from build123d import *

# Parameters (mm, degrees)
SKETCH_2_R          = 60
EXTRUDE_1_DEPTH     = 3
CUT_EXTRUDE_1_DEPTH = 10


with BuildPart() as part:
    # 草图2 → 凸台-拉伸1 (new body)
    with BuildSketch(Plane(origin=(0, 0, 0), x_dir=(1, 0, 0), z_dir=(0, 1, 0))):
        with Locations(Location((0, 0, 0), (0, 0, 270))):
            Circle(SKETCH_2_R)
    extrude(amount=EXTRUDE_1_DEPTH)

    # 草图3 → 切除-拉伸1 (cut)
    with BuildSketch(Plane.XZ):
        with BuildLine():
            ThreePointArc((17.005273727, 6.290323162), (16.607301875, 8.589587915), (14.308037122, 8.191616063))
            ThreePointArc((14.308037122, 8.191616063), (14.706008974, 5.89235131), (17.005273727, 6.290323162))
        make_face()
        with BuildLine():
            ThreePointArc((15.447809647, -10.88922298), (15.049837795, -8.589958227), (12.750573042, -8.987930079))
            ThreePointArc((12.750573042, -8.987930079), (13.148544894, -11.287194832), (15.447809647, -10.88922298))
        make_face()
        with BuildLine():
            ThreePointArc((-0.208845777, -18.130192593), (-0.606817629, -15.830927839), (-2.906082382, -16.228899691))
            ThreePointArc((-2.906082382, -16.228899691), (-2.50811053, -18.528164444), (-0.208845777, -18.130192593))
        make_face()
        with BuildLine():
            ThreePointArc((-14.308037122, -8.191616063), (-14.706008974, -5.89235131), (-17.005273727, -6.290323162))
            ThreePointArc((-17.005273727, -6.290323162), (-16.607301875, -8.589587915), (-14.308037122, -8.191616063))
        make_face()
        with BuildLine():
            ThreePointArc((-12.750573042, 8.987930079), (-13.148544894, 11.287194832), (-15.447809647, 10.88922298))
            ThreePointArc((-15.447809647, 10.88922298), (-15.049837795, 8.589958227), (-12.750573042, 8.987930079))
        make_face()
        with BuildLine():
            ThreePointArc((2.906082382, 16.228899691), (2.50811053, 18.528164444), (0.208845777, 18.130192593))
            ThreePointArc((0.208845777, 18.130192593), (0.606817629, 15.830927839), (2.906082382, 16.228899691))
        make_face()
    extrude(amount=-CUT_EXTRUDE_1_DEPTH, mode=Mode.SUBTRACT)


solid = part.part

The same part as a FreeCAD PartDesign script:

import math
import FreeCAD as App
import Part
import Sketcher

doc = App.newDocument("Part")
params = doc.addObject("Spreadsheet::Sheet", "Params")
for row, (alias, value) in enumerate([
    ("sketch1_diameter", "120 mm"),
    ("pad1_length", "3 mm"),
    ("sketch2_diameter", "3.3 mm"),
    ("pocket1_length", "10 mm"),
], start=1):
    params.set(f"A{row}", alias)
    params.set(f"B{row}", "=" + value)
    params.setAlias(f"B{row}", alias)

body = doc.addObject("PartDesign::Body", "Body")

# Sketch on XZ plane
sketch1 = body.newObject("Sketcher::SketchObject", "Sketch")
sketch1.AttachmentSupport = (doc.getObject("XZ_Plane"), [""])
sketch1.MapMode = "FlatFace"
sketch1.addGeometry(Part.Circle(App.Vector(0, 0, 0), App.Vector(0, 0, 1), 60), False)
sketch1.addConstraint([
    Sketcher.Constraint("Coincident", 0, 3, -1, 1),
    Sketcher.Constraint("Diameter", 0, 120.0),
])
sketch1.setExpression("Constraints[1]", "Params.sketch1_diameter")
pad1 = body.newObject("PartDesign::Pad", "Pad")
pad1.Profile = sketch1
pad1.setExpression("Length", "Params.pad1_length")
pad1.Reversed = True

# Sketch on XZ plane
sketch2 = body.newObject("Sketcher::SketchObject", "Sketch001")
sketch2.AttachmentSupport = (doc.getObject("XZ_Plane"), [""])
sketch2.MapMode = "FlatFace"
sketch2.addGeometry([
    Part.Circle(App.Vector(15.7, 7.2, 0), App.Vector(0, 0, 1), 1.6),  # 0
    Part.Circle(App.Vector(14.1, -9.9, 0), App.Vector(0, 0, 1), 1.6),  # 1
    Part.ArcOfCircle(Part.Circle(App.Vector(-1.6, -17.2, 0), App.Vector(0, 0, 1), 1.6), math.radians(-35), math.radians(145)),  # 2
    Part.ArcOfCircle(Part.Circle(App.Vector(-1.6, -17.2, 0), App.Vector(0, 0, 1), 1.6), math.radians(145), math.radians(325)),  # 3
    Part.Circle(App.Vector(-15.7, -7.2, 0), App.Vector(0, 0, 1), 1.6),  # 4
    Part.Circle(App.Vector(-14.1, 9.9, 0), App.Vector(0, 0, 1), 1.6),  # 5
    Part.ArcOfCircle(Part.Circle(App.Vector(1.6, 17.2, 0), App.Vector(0, 0, 1), 1.6), math.radians(-35), math.radians(145)),  # 6
    Part.ArcOfCircle(Part.Circle(App.Vector(1.6, 17.2, 0), App.Vector(0, 0, 1), 1.6), math.radians(145), math.radians(325)),  # 7
], False)
sketch2.addConstraint([
    Sketcher.Constraint("Tangent", 2, 1, 3, 2),
    Sketcher.Constraint("Coincident", 3, 1, 2, 2),
    Sketcher.Constraint("Tangent", 6, 1, 7, 2),
    Sketcher.Constraint("Coincident", 7, 1, 6, 2),
    Sketcher.Constraint("Equal", 0, 1),
    Sketcher.Constraint("Equal", 1, 2),
    Sketcher.Constraint("Equal", 3, 4),
    Sketcher.Constraint("Equal", 4, 5),
    Sketcher.Constraint("Equal", 5, 6),
    Sketcher.Constraint("Symmetric", 0, 3, 4, 3, -1, 1),
    Sketcher.Constraint("Symmetric", 1, 3, 5, 3, -1, 1),
    Sketcher.Constraint("Symmetric", 2, 3, 6, 3, -1, 1),
    Sketcher.Constraint("Diameter", 0, 3.3),
    Sketcher.Constraint("DistanceY", 3, 1, -1, 1, 16.2289),
    Sketcher.Constraint("DistanceY", -1, 1, 6, 1, 16.2289),
    Sketcher.Constraint("DistanceX", 2, 1, 0, 3, 15.865501),
    Sketcher.Constraint("DistanceY", -1, 1, 0, 3, 7.24097),
    Sketcher.Constraint("DistanceX", -1, 1, 1, 3, 14.099191),
    Sketcher.Constraint("DistanceY", 2, 3, 1, 3, 7.24097),
    Sketcher.Constraint("DistanceX", 2, 3, 0, 3, 17.21412),
    Sketcher.Constraint("DistanceX", 4, 3, 3, 3, 14.099191),
    Sketcher.Constraint("DistanceX", 3, 1, 3, 3, 1.348618),
    Sketcher.Constraint("DistanceX", 7, 1, 7, 3, 1.348618),
])
sketch2.setExpression("Constraints[12]", "Params.sketch2_diameter")
pocket1 = body.newObject("PartDesign::Pocket", "Pocket")
pocket1.Profile = sketch2
pocket1.setExpression("Length", "Params.pocket1_length")

doc.recompute()
